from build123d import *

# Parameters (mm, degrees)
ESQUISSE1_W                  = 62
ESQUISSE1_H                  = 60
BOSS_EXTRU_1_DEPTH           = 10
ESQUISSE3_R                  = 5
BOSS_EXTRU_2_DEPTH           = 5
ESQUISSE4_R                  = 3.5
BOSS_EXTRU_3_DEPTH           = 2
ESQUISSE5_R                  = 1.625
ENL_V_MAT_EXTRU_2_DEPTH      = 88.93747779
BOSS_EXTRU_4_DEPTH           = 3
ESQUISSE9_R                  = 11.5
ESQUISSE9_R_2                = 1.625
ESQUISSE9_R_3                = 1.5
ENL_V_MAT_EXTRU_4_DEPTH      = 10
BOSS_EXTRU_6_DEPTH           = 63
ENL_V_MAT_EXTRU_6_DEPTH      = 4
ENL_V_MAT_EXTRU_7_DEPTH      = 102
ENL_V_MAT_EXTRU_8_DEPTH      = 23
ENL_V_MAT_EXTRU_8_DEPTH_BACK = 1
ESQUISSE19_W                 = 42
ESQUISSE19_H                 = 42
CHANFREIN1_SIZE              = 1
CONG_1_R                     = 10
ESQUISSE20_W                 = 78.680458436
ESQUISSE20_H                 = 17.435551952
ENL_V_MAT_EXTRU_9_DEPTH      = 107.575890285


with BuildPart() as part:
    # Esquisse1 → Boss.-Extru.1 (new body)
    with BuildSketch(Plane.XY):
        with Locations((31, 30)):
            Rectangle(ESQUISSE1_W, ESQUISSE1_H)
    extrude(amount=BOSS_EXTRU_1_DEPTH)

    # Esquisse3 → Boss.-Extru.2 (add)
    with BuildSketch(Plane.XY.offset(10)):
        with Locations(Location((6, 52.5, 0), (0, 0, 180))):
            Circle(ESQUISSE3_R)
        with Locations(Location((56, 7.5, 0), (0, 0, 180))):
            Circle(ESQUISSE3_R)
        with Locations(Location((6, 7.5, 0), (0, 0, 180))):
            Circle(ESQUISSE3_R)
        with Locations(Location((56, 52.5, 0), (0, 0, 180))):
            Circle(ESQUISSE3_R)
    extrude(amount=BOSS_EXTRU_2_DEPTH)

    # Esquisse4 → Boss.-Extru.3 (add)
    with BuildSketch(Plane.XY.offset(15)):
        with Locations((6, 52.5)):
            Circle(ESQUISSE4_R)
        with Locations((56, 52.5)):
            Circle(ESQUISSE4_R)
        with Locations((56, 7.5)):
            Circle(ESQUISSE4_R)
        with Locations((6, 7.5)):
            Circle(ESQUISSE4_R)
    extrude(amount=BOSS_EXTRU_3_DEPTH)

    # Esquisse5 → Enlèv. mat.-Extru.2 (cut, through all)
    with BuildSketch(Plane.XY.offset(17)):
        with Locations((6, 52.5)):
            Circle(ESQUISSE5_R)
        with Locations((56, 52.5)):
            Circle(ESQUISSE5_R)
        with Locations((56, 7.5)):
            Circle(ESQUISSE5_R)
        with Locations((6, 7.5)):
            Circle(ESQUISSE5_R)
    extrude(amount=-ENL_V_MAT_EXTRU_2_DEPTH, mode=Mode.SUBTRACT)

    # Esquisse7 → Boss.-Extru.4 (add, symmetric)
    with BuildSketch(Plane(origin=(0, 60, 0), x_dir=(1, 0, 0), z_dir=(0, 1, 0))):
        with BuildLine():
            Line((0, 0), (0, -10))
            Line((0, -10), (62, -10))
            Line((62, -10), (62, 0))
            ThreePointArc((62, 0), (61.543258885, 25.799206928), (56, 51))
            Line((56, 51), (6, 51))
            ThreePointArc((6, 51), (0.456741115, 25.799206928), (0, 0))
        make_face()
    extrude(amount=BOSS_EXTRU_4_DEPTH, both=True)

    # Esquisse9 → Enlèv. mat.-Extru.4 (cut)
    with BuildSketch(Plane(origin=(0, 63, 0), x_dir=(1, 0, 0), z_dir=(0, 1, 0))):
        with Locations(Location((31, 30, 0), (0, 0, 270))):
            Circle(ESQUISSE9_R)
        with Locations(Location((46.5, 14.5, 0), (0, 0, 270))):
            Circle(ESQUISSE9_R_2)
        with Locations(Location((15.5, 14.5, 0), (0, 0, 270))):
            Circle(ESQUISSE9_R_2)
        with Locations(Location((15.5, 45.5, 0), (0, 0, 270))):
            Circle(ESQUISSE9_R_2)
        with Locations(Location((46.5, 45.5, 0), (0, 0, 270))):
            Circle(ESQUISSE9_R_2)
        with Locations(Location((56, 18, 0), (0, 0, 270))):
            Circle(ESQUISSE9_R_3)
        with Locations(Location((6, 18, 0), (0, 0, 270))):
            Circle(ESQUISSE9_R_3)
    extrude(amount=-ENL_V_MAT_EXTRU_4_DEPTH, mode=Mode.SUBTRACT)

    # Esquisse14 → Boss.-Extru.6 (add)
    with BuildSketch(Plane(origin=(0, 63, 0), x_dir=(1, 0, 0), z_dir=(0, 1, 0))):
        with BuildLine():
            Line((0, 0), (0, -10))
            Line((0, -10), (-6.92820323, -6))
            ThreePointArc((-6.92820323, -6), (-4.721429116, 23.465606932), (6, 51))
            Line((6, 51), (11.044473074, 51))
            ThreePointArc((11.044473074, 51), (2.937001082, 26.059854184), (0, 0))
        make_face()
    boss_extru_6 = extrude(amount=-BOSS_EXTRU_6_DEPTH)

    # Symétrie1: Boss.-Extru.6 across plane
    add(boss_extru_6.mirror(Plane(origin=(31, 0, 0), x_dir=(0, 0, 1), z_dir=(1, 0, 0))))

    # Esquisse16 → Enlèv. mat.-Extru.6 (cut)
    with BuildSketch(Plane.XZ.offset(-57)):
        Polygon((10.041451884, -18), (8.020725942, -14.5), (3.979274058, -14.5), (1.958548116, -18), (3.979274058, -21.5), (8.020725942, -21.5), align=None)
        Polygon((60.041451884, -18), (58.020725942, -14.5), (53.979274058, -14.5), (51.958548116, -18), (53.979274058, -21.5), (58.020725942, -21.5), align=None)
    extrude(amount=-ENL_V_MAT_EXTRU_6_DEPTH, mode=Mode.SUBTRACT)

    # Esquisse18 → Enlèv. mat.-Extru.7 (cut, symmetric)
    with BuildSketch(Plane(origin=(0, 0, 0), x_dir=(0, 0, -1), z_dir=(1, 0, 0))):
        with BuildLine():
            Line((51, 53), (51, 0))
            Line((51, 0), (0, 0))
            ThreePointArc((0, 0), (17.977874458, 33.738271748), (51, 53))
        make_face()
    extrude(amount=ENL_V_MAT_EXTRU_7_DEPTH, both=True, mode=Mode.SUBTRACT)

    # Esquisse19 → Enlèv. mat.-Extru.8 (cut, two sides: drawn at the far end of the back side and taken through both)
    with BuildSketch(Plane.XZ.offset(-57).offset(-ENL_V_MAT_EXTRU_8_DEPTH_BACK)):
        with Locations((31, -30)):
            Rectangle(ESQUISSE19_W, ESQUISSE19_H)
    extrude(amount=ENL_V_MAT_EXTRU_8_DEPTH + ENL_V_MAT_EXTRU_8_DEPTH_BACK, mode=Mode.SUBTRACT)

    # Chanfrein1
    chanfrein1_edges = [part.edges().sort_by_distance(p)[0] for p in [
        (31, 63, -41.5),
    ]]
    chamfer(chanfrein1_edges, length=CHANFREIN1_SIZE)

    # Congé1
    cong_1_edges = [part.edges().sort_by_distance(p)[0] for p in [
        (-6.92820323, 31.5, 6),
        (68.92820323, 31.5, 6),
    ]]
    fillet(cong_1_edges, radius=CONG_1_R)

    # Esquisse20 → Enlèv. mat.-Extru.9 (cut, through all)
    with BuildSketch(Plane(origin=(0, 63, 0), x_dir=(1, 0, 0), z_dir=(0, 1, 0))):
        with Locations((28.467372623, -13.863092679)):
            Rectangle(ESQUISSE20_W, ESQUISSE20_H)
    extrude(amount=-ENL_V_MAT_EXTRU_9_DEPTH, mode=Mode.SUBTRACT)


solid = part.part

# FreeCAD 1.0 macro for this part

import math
import FreeCAD as App
import Part
import Sketcher
Q = App.Units.Quantity


def edges_at(feature, points):
    """Names of the edges that pass closest to the given points."""
    edges = feature.Shape.Edges
    near = lambda p: min(range(len(edges)), key=lambda i: edges[i].distToShape(Part.Vertex(*p))[0])
    return sorted({f"Edge{near(p) + 1}" for p in points})


def add_polygon(sketch, points):
    """Adds a closed chain of lines whose ends are joined by coincident constraints."""
    first, n = sketch.GeometryCount, len(points)
    for a, b in zip(points, points[1:] + points[:1]):
        sketch.addGeometry(Part.LineSegment(App.Vector(*a, 0), App.Vector(*b, 0)), False)
    for i in range(n):
        sketch.addConstraint(Sketcher.Constraint("Coincident", first + i, 2, first + (i + 1) % n, 1))

doc = App.newDocument("Part")
body = doc.addObject("PartDesign::Body", "Body")

# Sketch on XY plane
sketch1 = body.newObject("Sketcher::SketchObject", "Sketch")
sketch1.AttachmentSupport = (doc.getObject("XY_Plane"), [""])
sketch1.MapMode = "FlatFace"
add_polygon(sketch1, [(0, 60), (0, 0), (62, 0), (62, 60)])  # lines 0-3
sketch1.addConstraint([
    Sketcher.Constraint("Vertical", 0),
    Sketcher.Constraint("Horizontal", 1),
    Sketcher.Constraint("Vertical", 2),
    Sketcher.Constraint("Horizontal", 3),
    Sketcher.Constraint("Coincident", 0, 2, -1, 1),
    Sketcher.Constraint("DistanceX", 1, 1, 1, 2, 62.0),
    Sketcher.Constraint("DistanceY", 0, 2, 0, 1, 60.0),
])
pad1 = body.newObject("PartDesign::Pad", "Pad")
pad1.Profile = sketch1
pad1.Length = 10

# Sketch on XY plane
sketch2 = body.newObject("Sketcher::SketchObject", "Sketch001")
sketch2.AttachmentSupport = (doc.getObject("XY_Plane"), [""])
sketch2.MapMode = "FlatFace"
sketch2.AttachmentOffset = App.Placement(App.Vector(0, 0, 10), App.Rotation())
sketch2.addGeometry([
    Part.Circle(App.Vector(6, 52, 0), App.Vector(0, 0, 1), 5),
    Part.Circle(App.Vector(56, 8, 0), App.Vector(0, 0, 1), 5),
    Part.Circle(App.Vector(6, 8, 0), App.Vector(0, 0, 1), 5),
    Part.Circle(App.Vector(56, 52, 0), App.Vector(0, 0, 1), 5),
], False)
sketch2.addConstraint([
    Sketcher.Constraint("Equal", 0, 1),
    Sketcher.Constraint("Equal", 1, 2),
    Sketcher.Constraint("Equal", 2, 3),
    Sketcher.Constraint("Horizontal", 1, 3, 2, 3),
    Sketcher.Constraint("Horizontal", 0, 3, 3, 3),
    Sketcher.Constraint("Vertical", 0, 3, 2, 3),
    Sketcher.Constraint("Vertical", 1, 3, 3, 3),
    Sketcher.Constraint("Diameter", 0, 10.0),
    Sketcher.Constraint("DistanceX", -1, 1, 0, 3, 6.0),
    Sketcher.Constraint("DistanceX", -1, 1, 1, 3, 56.0),
    Sketcher.Constraint("DistanceY", 1, 3, 0, 3, 45.0),
    Sketcher.Constraint("DistanceY", -1, 1, 0, 3, 52.5),
])
pad2 = body.newObject("PartDesign::Pad", "Pad001")
pad2.Profile = sketch2
pad2.Length = 5

# Sketch on XY plane
sketch3 = body.newObject("Sketcher::SketchObject", "Sketch002")
sketch3.AttachmentSupport = (doc.getObject("XY_Plane"), [""])
sketch3.MapMode = "FlatFace"
sketch3.AttachmentOffset = App.Placement(App.Vector(0, 0, 15), App.Rotation())
sketch3.addGeometry([
    Part.Circle(App.Vector(6, 52.5, 0), App.Vector(0, 0, 1), 3.5),
    Part.Circle(App.Vector(56, 52.5, 0), App.Vector(0, 0, 1), 3.5),
    Part.Circle(App.Vector(56, 7.5, 0), App.Vector(0, 0, 1), 3.5),
    Part.Circle(App.Vector(6, 7.5, 0), App.Vector(0, 0, 1), 3.5),
], False)
sketch3.addConstraint([
    Sketcher.Constraint("Equal", 0, 1),
    Sketcher.Constraint("Equal", 1, 2),
    Sketcher.Constraint("Equal", 2, 3),
    Sketcher.Constraint("Horizontal", 0, 3, 1, 3),
    Sketcher.Constraint("Horizontal", 2, 3, 3, 3),
    Sketcher.Constraint("Vertical", 1, 3, 2, 3),
    Sketcher.Constraint("Vertical", 0, 3, 3, 3),
    Sketcher.Constraint("Diameter", 0, 7.0),
    Sketcher.Constraint("DistanceX", -1, 1, 0, 3, 6.0),
    Sketcher.Constraint("DistanceX", -1, 1, 1, 3, 56.0),
    Sketcher.Constraint("DistanceY", 2, 3, 1, 3, 45.0),
    Sketcher.Constraint("DistanceY", -1, 1, 0, 3, 52.5),
])
pad3 = body.newObject("PartDesign::Pad", "Pad002")
pad3.Profile = sketch3
pad3.Length = 2

# Sketch on XY plane
sketch4 = body.newObject("Sketcher::SketchObject", "Sketch003")
sketch4.AttachmentSupport = (doc.getObject("XY_Plane"), [""])
sketch4.MapMode = "FlatFace"
sketch4.AttachmentOffset = App.Placement(App.Vector(0, 0, 17), App.Rotation())
sketch4.addGeometry([
    Part.Circle(App.Vector(6, 52.5, 0), App.Vector(0, 0, 1), 1.6),
    Part.Circle(App.Vector(56, 52.5, 0), App.Vector(0, 0, 1), 1.6),
    Part.Circle(App.Vector(56, 7.5, 0), App.Vector(0, 0, 1), 1.6),
    Part.Circle(App.Vector(6, 7.5, 0), App.Vector(0, 0, 1), 1.6),
], False)
sketch4.addConstraint([
    Sketcher.Constraint("Equal", 0, 1),
    Sketcher.Constraint("Equal", 1, 2),
    Sketcher.Constraint("Equal", 2, 3),
    Sketcher.Constraint("Horizontal", 0, 3, 1, 3),
    Sketcher.Constraint("Horizontal", 2, 3, 3, 3),
    Sketcher.Constraint("Vertical", 1, 3, 2, 3),
    Sketcher.Constraint("Vertical", 0, 3, 3, 3),
    Sketcher.Constraint("Diameter", 0, 3.25),
    Sketcher.Constraint("DistanceX", -1, 1, 0, 3, 6.0),
    Sketcher.Constraint("DistanceX", -1, 1, 1, 3, 56.0),
    Sketcher.Constraint("DistanceY", 2, 3, 1, 3, 45.0),
    Sketcher.Constraint("DistanceY", -1, 1, 0, 3, 52.5),
])
pocket1 = body.newObject("PartDesign::Pocket", "Pocket")
pocket1.Profile = sketch4
pocket1.Type = "ThroughAll"

# Sketch on XZ plane
sketch5 = body.newObject("Sketcher::SketchObject", "Sketch004")
sketch5.AttachmentSupport = (doc.getObject("XZ_Plane"), [""])
sketch5.MapMode = "FlatFace"
sketch5.AttachmentOffset = App.Placement(App.Vector(0, 0, -60), App.Rotation())
sketch5.addGeometry([
    Part.LineSegment(App.Vector(0, 0, 0), App.Vector(0, 10, 0)),  # 0
    Part.LineSegment(App.Vector(0, 10, 0), App.Vector(62, 10, 0)),  # 1
    Part.LineSegment(App.Vector(62, 10, 0), App.Vector(62, 0, 0)),  # 2
    Part.ArcOfCircle(Part.Circle(App.Vector(-68, -11, 0), App.Vector(0, 0, 1), 130), math.radians(-18), math.radians(5)),  # 3
    Part.LineSegment(App.Vector(56, -51, 0), App.Vector(6, -51, 0)),  # 4
    Part.ArcOfCircle(Part.Circle(App.Vector(130, -11, 0), App.Vector(0, 0, 1), 130), math.radians(175), math.radians(198)),  # 5
], False)
sketch5.addConstraint([
    Sketcher.Constraint("Coincident", 0, 2, 1, 1),
    Sketcher.Constraint("Coincident", 1, 2, 2, 1),
    Sketcher.Constraint("Coincident", 2, 2, 3, 2),
    Sketcher.Constraint("Coincident", 3, 1, 4, 1),
    Sketcher.Constraint("Coincident", 4, 2, 5, 2),
    Sketcher.Constraint("Coincident", 5, 1, 0, 1),
    Sketcher.Constraint("Vertical", 0),
    Sketcher.Constraint("Horizontal", 1),
    Sketcher.Constraint("Vertical", 2),
    Sketcher.Constraint("Horizontal", 4),
    Sketcher.Constraint("Coincident", 5, 1, -1, 1),
    Sketcher.Constraint("Equal", 3, 5),
    Sketcher.Constraint("PointOnObject", 2, 2, -1),
    Sketcher.Constraint("Horizontal", 3, 3, 5, 3),
    Sketcher.Constraint("Radius", 3, 130.0),
    Sketcher.Constraint("DistanceX", 1, 1, 1, 2, 62.0),
    Sketcher.Constraint("DistanceX", 4, 2, 4, 1, 50.0),
    Sketcher.Constraint("DistanceY", 0, 1, 0, 2, 10.0),
    Sketcher.Constraint("DistanceY", 3, 1, -1, 1, 51.0),
])
pad4 = body.newObject("PartDesign::Pad", "Pad003")
pad4.Profile = sketch5
pad4.Length = 6
pad4.Midplane = True

# Sketch on XZ plane
sketch6 = body.newObject("Sketcher::SketchObject", "Sketch005")
sketch6.AttachmentSupport = (doc.getObject("XZ_Plane"), [""])
sketch6.MapMode = "FlatFace"
sketch6.AttachmentOffset = App.Placement(App.Vector(0, 0, -63), App.Rotation())
sketch6.addGeometry([
    Part.Circle(App.Vector(31, -30, 0), App.Vector(0, 0, 1), 11.5),  # 0
    Part.Circle(App.Vector(46.5, -14.5, 0), App.Vector(0, 0, 1), 1.6),  # 1
    Part.Circle(App.Vector(15.5, -14.5, 0), App.Vector(0, 0, 1), 1.6),  # 2
    Part.Circle(App.Vector(15.5, -45.5, 0), App.Vector(0, 0, 1), 1.6),  # 3
    Part.Circle(App.Vector(46.5, -45.5, 0), App.Vector(0, 0, 1), 1.6),  # 4
    Part.Circle(App.Vector(56, -18, 0), App.Vector(0, 0, 1), 1.5),  # 5
    Part.Circle(App.Vector(6, -18, 0), App.Vector(0, 0, 1), 1.5),  # 6
], False)
sketch6.addConstraint([
    Sketcher.Constraint("Equal", 1, 2),
    Sketcher.Constraint("Equal", 2, 3),
    Sketcher.Constraint("Equal", 3, 4),
    Sketcher.Constraint("Equal", 5, 6),
    Sketcher.Constraint("Horizontal", 1, 3, 2, 3),
    Sketcher.Constraint("Horizontal", 3, 3, 4, 3),
    Sketcher.Constraint("Horizontal", 5, 3, 6, 3),
    Sketcher.Constraint("Vertical", 2, 3, 3, 3),
    Sketcher.Constraint("Vertical", 1, 3, 4, 3),
    Sketcher.Constraint("Diameter", 0, 23.0),
    Sketcher.Constraint("Diameter", 5, 3.0),
    Sketcher.Constraint("Diameter", 1, 3.25),
    Sketcher.Constraint("DistanceX", -1, 1, 0, 3, 31.0),
    Sketcher.Constraint("DistanceY", 0, 3, -1, 1, 30.0),
    Sketcher.Constraint("DistanceX", -1, 1, 5, 3, 56.0),
    Sketcher.Constraint("DistanceY", 5, 3, -1, 1, 18.0),
    Sketcher.Constraint("DistanceX", -1, 1, 6, 3, 6.0),
    Sketcher.Constraint("DistanceX", 2, 3, 1, 3, 31.0),
    Sketcher.Constraint("DistanceY", 3, 3, 2, 3, 31.0),
    Sketcher.Constraint("DistanceX", -1, 1, 1, 3, 46.5),
    Sketcher.Constraint("DistanceY", 1, 3, -1, 1, 14.5),
])
pocket2 = body.newObject("PartDesign::Pocket", "Pocket001")
pocket2.Profile = sketch6
pocket2.Length = 10
pocket2.Reversed = True

# Sketch on XZ plane
sketch7 = body.newObject("Sketcher::SketchObject", "Sketch006")
sketch7.AttachmentSupport = (doc.getObject("XZ_Plane"), [""])
sketch7.MapMode = "FlatFace"
sketch7.AttachmentOffset = App.Placement(App.Vector(0, 0, -63), App.Rotation())
sketch7.addGeometry([
    Part.LineSegment(App.Vector(0, 10, 0), App.Vector(0, 0, 0)),  # 0
    Part.ArcOfCircle(Part.Circle(App.Vector(130, 1, 0), App.Vector(0, 0, 1), 130), math.radians(-179), math.radians(-156)),  # 1
    Part.LineSegment(App.Vector(11, -51, 0), App.Vector(6, -51, 0)),  # 2
    Part.ArcOfCircle(Part.Circle(App.Vector(93, -1, 0), App.Vector(0, 0, 1), 100), math.radians(176), math.radians(210)),  # 3
    Part.LineSegment(App.Vector(-7, 6, 0), App.Vector(0, 10, 0)),  # 4
], False)
sketch7.addConstraint([
    Sketcher.Constraint("Coincident", 0, 2, 1, 1),
    Sketcher.Constraint("Coincident", 1, 2, 2, 1),
    Sketcher.Constraint("Coincident", 2, 2, 3, 2),
    Sketcher.Constraint("Coincident", 3, 1, 4, 1),
    Sketcher.Constraint("Coincident", 4, 2, 0, 1),
    Sketcher.Constraint("Vertical", 0),
    Sketcher.Constraint("Horizontal", 2),
    Sketcher.Constraint("Coincident", 0, 2, -1, 1),
    Sketcher.Constraint("Radius", 1, 130.0),
    Sketcher.Constraint("Radius", 3, 100.0),
    Sketcher.Constraint("DistanceY", 0, 2, 0, 1, 10.0),
    Sketcher.Constraint("Angle", 4, Q("30 deg")),
    Sketcher.Constraint("Distance", 4, 8.0),
    Sketcher.Constraint("DistanceY", 1, 2, -1, 1, 51.0),
    Sketcher.Constraint("DistanceX", -1, 1, 2, 2, 6.0),
    Sketcher.Constraint("DistanceX", 2, 2, 2, 1, 5.044473),
])
pad5 = body.newObject("PartDesign::Pad", "Pad004")
pad5.Profile = sketch7
pad5.Length = 63
doc.recompute()

datumplane = body.newObject("PartDesign::Plane", "DatumPlane")
datumplane.AttachmentSupport = (doc.getObject("YZ_Plane"), [""])
datumplane.MapMode = "FlatFace"
datumplane.AttachmentOffset = App.Placement(App.Vector(0, 0, 31), App.Rotation())
mirrored = body.newObject("PartDesign::Mirrored", "Mirrored")
mirrored.Originals = [pad5]
mirrored.MirrorPlane = (datumplane, [""])
body.Tip = mirrored

# Sketch on XZ plane
sketch8 = body.newObject("Sketcher::SketchObject", "Sketch007")
sketch8.AttachmentSupport = (doc.getObject("XZ_Plane"), [""])
sketch8.MapMode = "FlatFace"
sketch8.AttachmentOffset = App.Placement(App.Vector(0, 0, -57), App.Rotation())
add_polygon(sketch8, [(10, -18), (8, -14.5), (4, -14.5), (2, -18), (4, -21.5), (8, -21.5)])  # lines 0-5
add_polygon(sketch8, [(60, -18), (58, -14.5), (54, -14.5), (52, -18), (54, -21.5), (58, -21.5)])  # lines 6-11
sketch8.addConstraint([
    Sketcher.Constraint("Horizontal", 1),
    Sketcher.Constraint("Horizontal", 4),
    Sketcher.Constraint("Horizontal", 7),
    Sketcher.Constraint("Horizontal", 10),
    Sketcher.Constraint("Parallel", 0, 3),
    Sketcher.Constraint("Parallel", 2, 5),
    Sketcher.Constraint("Parallel", 3, 6),
    Sketcher.Constraint("Parallel", 5, 8),
    Sketcher.Constraint("Parallel", 6, 9),
    Sketcher.Constraint("Parallel", 8, 11),
    Sketcher.Constraint("Horizontal", 2, 2, 5, 2),
    Sketcher.Constraint("Horizontal", 1, 2, 6, 2),
    Sketcher.Constraint("Horizontal", 5, 2, 8, 2),
    Sketcher.Constraint("Horizontal", 4, 2, 9, 2),
    Sketcher.Constraint("Horizontal", 8, 2, 11, 2),
    Sketcher.Constraint("Vertical", 1, 2, 3, 2),
    Sketcher.Constraint("Vertical", 0, 2, 4, 2),
    Sketcher.Constraint("Equal", 4, 7),
    Sketcher.Constraint("Angle", 0, Q("120 deg")),
    Sketcher.Constraint("DistanceY", 2, 2, -1, 1, 18.0),
    Sketcher.Constraint("DistanceY", 3, 2, 1, 2, 7.0),
    Sketcher.Constraint("DistanceX", 0, 2, 6, 2, 50.0),
    Sketcher.Constraint("DistanceX", 1, 2, 1, 1, 4.041452),
    Sketcher.Constraint("DistanceX", -1, 1, 2, 2, 1.958548),
])
pocket3 = body.newObject("PartDesign::Pocket", "Pocket002")
pocket3.Profile = sketch8
pocket3.Length = 4

# Sketch on YZ plane
sketch9 = body.newObject("Sketcher::SketchObject", "Sketch008")
sketch9.AttachmentSupport = (doc.getObject("YZ_Plane"), [""])
sketch9.MapMode = "FlatFace"
sketch9.addGeometry([
    Part.LineSegment(App.Vector(0, -51, 0), App.Vector(53, -51, 0)),
    Part.ArcOfCircle(Part.Circle(App.Vector(-15, -68, 0), App.Vector(0, 0, 1), 70), math.radians(14), math.radians(78)),
    Part.LineSegment(App.Vector(0, 0, 0), App.Vector(0, -51, 0)),
], False)
sketch9.addConstraint([
    Sketcher.Constraint("Coincident", 0, 2, 1, 1),
    Sketcher.Constraint("Coincident", 1, 2, 2, 1),
    Sketcher.Constraint("Coincident", 2, 2, 0, 1),
    Sketcher.Constraint("Horizontal", 0),
    Sketcher.Constraint("Vertical", 2),
    Sketcher.Constraint("Coincident", 1, 2, -1, 1),
    Sketcher.Constraint("Radius", 1, 70.0),
    Sketcher.Constraint("DistanceX", 0, 1, 0, 2, 53.0),
    Sketcher.Constraint("DistanceY", 2, 2, 2, 1, 51.0),
])
pocket4 = body.newObject("PartDesign::Pocket", "Pocket003")
pocket4.Profile = sketch9
pocket4.Length = 204
pocket4.Midplane = True

# Sketch on XZ plane
sketch10 = body.newObject("Sketcher::SketchObject", "Sketch009")
sketch10.AttachmentSupport = (doc.getObject("XZ_Plane"), [""])
sketch10.MapMode = "FlatFace"
sketch10.AttachmentOffset = App.Placement(App.Vector(0, 0, -57), App.Rotation())
add_polygon(sketch10, [(10, -9), (10, -51), (52, -51), (52, -9)])  # lines 0-3
sketch10.addConstraint([
    Sketcher.Constraint("Vertical", 0),
    Sketcher.Constraint("Horizontal", 1),
    Sketcher.Constraint("Vertical", 2),
    Sketcher.Constraint("Horizontal", 3),
    Sketcher.Constraint("Equal", 3, 0),
    Sketcher.Constraint("DistanceX", 1, 1, 1, 2, 42.0),
    Sketcher.Constraint("DistanceX", -1, 1, 0, 2, 10.0),
    Sketcher.Constraint("DistanceY", 0, 2, -1, 1, 51.0),
])
pocket5 = body.newObject("PartDesign::Pocket", "Pocket004")
pocket5.Profile = sketch10
pocket5.Type = "TwoLengths"
pocket5.Length = 23
pocket5.Length2 = 1
pocket5.Reversed = True
doc.recompute()

chamfer = body.newObject("PartDesign::Chamfer", "Chamfer")
chamfer.Base = (pocket5, edges_at(pocket5, [(31, 63, -41.5)]))
chamfer.Size = 1
doc.recompute()

fillet = body.newObject("PartDesign::Fillet", "Fillet")
fillet.Base = (chamfer, edges_at(chamfer, [(-6.928, 31.5, 6), (68.928, 31.5, 6)]))
fillet.Radius = 10

# Sketch on XZ plane
sketch11 = body.newObject("Sketcher::SketchObject", "Sketch010")
sketch11.AttachmentSupport = (doc.getObject("XZ_Plane"), [""])
sketch11.MapMode = "FlatFace"
sketch11.AttachmentOffset = App.Placement(App.Vector(0, 0, -63), App.Rotation())
add_polygon(sketch11, [(-11, 5), (-11, 23), (68, 23), (68, 5)])  # lines 0-3
sketch11.addConstraint([
    Sketcher.Constraint("Vertical", 0),
    Sketcher.Constraint("Horizontal", 1),
    Sketcher.Constraint("Vertical", 2),
    Sketcher.Constraint("Horizontal", 3),
    Sketcher.Constraint("DistanceX", 1, 1, 1, 2, 78.680458),
    Sketcher.Constraint("DistanceY", 0, 1, 0, 2, 17.435552),
    Sketcher.Constraint("DistanceX", -1, 1, 1, 2, 67.807602),
    Sketcher.Constraint("DistanceY", -1, 1, 0, 2, 22.580869),
])
pocket6 = body.newObject("PartDesign::Pocket", "Pocket005")
pocket6.Profile = sketch11
pocket6.Type = "ThroughAll"
pocket6.Reversed = True

doc.recompute()
